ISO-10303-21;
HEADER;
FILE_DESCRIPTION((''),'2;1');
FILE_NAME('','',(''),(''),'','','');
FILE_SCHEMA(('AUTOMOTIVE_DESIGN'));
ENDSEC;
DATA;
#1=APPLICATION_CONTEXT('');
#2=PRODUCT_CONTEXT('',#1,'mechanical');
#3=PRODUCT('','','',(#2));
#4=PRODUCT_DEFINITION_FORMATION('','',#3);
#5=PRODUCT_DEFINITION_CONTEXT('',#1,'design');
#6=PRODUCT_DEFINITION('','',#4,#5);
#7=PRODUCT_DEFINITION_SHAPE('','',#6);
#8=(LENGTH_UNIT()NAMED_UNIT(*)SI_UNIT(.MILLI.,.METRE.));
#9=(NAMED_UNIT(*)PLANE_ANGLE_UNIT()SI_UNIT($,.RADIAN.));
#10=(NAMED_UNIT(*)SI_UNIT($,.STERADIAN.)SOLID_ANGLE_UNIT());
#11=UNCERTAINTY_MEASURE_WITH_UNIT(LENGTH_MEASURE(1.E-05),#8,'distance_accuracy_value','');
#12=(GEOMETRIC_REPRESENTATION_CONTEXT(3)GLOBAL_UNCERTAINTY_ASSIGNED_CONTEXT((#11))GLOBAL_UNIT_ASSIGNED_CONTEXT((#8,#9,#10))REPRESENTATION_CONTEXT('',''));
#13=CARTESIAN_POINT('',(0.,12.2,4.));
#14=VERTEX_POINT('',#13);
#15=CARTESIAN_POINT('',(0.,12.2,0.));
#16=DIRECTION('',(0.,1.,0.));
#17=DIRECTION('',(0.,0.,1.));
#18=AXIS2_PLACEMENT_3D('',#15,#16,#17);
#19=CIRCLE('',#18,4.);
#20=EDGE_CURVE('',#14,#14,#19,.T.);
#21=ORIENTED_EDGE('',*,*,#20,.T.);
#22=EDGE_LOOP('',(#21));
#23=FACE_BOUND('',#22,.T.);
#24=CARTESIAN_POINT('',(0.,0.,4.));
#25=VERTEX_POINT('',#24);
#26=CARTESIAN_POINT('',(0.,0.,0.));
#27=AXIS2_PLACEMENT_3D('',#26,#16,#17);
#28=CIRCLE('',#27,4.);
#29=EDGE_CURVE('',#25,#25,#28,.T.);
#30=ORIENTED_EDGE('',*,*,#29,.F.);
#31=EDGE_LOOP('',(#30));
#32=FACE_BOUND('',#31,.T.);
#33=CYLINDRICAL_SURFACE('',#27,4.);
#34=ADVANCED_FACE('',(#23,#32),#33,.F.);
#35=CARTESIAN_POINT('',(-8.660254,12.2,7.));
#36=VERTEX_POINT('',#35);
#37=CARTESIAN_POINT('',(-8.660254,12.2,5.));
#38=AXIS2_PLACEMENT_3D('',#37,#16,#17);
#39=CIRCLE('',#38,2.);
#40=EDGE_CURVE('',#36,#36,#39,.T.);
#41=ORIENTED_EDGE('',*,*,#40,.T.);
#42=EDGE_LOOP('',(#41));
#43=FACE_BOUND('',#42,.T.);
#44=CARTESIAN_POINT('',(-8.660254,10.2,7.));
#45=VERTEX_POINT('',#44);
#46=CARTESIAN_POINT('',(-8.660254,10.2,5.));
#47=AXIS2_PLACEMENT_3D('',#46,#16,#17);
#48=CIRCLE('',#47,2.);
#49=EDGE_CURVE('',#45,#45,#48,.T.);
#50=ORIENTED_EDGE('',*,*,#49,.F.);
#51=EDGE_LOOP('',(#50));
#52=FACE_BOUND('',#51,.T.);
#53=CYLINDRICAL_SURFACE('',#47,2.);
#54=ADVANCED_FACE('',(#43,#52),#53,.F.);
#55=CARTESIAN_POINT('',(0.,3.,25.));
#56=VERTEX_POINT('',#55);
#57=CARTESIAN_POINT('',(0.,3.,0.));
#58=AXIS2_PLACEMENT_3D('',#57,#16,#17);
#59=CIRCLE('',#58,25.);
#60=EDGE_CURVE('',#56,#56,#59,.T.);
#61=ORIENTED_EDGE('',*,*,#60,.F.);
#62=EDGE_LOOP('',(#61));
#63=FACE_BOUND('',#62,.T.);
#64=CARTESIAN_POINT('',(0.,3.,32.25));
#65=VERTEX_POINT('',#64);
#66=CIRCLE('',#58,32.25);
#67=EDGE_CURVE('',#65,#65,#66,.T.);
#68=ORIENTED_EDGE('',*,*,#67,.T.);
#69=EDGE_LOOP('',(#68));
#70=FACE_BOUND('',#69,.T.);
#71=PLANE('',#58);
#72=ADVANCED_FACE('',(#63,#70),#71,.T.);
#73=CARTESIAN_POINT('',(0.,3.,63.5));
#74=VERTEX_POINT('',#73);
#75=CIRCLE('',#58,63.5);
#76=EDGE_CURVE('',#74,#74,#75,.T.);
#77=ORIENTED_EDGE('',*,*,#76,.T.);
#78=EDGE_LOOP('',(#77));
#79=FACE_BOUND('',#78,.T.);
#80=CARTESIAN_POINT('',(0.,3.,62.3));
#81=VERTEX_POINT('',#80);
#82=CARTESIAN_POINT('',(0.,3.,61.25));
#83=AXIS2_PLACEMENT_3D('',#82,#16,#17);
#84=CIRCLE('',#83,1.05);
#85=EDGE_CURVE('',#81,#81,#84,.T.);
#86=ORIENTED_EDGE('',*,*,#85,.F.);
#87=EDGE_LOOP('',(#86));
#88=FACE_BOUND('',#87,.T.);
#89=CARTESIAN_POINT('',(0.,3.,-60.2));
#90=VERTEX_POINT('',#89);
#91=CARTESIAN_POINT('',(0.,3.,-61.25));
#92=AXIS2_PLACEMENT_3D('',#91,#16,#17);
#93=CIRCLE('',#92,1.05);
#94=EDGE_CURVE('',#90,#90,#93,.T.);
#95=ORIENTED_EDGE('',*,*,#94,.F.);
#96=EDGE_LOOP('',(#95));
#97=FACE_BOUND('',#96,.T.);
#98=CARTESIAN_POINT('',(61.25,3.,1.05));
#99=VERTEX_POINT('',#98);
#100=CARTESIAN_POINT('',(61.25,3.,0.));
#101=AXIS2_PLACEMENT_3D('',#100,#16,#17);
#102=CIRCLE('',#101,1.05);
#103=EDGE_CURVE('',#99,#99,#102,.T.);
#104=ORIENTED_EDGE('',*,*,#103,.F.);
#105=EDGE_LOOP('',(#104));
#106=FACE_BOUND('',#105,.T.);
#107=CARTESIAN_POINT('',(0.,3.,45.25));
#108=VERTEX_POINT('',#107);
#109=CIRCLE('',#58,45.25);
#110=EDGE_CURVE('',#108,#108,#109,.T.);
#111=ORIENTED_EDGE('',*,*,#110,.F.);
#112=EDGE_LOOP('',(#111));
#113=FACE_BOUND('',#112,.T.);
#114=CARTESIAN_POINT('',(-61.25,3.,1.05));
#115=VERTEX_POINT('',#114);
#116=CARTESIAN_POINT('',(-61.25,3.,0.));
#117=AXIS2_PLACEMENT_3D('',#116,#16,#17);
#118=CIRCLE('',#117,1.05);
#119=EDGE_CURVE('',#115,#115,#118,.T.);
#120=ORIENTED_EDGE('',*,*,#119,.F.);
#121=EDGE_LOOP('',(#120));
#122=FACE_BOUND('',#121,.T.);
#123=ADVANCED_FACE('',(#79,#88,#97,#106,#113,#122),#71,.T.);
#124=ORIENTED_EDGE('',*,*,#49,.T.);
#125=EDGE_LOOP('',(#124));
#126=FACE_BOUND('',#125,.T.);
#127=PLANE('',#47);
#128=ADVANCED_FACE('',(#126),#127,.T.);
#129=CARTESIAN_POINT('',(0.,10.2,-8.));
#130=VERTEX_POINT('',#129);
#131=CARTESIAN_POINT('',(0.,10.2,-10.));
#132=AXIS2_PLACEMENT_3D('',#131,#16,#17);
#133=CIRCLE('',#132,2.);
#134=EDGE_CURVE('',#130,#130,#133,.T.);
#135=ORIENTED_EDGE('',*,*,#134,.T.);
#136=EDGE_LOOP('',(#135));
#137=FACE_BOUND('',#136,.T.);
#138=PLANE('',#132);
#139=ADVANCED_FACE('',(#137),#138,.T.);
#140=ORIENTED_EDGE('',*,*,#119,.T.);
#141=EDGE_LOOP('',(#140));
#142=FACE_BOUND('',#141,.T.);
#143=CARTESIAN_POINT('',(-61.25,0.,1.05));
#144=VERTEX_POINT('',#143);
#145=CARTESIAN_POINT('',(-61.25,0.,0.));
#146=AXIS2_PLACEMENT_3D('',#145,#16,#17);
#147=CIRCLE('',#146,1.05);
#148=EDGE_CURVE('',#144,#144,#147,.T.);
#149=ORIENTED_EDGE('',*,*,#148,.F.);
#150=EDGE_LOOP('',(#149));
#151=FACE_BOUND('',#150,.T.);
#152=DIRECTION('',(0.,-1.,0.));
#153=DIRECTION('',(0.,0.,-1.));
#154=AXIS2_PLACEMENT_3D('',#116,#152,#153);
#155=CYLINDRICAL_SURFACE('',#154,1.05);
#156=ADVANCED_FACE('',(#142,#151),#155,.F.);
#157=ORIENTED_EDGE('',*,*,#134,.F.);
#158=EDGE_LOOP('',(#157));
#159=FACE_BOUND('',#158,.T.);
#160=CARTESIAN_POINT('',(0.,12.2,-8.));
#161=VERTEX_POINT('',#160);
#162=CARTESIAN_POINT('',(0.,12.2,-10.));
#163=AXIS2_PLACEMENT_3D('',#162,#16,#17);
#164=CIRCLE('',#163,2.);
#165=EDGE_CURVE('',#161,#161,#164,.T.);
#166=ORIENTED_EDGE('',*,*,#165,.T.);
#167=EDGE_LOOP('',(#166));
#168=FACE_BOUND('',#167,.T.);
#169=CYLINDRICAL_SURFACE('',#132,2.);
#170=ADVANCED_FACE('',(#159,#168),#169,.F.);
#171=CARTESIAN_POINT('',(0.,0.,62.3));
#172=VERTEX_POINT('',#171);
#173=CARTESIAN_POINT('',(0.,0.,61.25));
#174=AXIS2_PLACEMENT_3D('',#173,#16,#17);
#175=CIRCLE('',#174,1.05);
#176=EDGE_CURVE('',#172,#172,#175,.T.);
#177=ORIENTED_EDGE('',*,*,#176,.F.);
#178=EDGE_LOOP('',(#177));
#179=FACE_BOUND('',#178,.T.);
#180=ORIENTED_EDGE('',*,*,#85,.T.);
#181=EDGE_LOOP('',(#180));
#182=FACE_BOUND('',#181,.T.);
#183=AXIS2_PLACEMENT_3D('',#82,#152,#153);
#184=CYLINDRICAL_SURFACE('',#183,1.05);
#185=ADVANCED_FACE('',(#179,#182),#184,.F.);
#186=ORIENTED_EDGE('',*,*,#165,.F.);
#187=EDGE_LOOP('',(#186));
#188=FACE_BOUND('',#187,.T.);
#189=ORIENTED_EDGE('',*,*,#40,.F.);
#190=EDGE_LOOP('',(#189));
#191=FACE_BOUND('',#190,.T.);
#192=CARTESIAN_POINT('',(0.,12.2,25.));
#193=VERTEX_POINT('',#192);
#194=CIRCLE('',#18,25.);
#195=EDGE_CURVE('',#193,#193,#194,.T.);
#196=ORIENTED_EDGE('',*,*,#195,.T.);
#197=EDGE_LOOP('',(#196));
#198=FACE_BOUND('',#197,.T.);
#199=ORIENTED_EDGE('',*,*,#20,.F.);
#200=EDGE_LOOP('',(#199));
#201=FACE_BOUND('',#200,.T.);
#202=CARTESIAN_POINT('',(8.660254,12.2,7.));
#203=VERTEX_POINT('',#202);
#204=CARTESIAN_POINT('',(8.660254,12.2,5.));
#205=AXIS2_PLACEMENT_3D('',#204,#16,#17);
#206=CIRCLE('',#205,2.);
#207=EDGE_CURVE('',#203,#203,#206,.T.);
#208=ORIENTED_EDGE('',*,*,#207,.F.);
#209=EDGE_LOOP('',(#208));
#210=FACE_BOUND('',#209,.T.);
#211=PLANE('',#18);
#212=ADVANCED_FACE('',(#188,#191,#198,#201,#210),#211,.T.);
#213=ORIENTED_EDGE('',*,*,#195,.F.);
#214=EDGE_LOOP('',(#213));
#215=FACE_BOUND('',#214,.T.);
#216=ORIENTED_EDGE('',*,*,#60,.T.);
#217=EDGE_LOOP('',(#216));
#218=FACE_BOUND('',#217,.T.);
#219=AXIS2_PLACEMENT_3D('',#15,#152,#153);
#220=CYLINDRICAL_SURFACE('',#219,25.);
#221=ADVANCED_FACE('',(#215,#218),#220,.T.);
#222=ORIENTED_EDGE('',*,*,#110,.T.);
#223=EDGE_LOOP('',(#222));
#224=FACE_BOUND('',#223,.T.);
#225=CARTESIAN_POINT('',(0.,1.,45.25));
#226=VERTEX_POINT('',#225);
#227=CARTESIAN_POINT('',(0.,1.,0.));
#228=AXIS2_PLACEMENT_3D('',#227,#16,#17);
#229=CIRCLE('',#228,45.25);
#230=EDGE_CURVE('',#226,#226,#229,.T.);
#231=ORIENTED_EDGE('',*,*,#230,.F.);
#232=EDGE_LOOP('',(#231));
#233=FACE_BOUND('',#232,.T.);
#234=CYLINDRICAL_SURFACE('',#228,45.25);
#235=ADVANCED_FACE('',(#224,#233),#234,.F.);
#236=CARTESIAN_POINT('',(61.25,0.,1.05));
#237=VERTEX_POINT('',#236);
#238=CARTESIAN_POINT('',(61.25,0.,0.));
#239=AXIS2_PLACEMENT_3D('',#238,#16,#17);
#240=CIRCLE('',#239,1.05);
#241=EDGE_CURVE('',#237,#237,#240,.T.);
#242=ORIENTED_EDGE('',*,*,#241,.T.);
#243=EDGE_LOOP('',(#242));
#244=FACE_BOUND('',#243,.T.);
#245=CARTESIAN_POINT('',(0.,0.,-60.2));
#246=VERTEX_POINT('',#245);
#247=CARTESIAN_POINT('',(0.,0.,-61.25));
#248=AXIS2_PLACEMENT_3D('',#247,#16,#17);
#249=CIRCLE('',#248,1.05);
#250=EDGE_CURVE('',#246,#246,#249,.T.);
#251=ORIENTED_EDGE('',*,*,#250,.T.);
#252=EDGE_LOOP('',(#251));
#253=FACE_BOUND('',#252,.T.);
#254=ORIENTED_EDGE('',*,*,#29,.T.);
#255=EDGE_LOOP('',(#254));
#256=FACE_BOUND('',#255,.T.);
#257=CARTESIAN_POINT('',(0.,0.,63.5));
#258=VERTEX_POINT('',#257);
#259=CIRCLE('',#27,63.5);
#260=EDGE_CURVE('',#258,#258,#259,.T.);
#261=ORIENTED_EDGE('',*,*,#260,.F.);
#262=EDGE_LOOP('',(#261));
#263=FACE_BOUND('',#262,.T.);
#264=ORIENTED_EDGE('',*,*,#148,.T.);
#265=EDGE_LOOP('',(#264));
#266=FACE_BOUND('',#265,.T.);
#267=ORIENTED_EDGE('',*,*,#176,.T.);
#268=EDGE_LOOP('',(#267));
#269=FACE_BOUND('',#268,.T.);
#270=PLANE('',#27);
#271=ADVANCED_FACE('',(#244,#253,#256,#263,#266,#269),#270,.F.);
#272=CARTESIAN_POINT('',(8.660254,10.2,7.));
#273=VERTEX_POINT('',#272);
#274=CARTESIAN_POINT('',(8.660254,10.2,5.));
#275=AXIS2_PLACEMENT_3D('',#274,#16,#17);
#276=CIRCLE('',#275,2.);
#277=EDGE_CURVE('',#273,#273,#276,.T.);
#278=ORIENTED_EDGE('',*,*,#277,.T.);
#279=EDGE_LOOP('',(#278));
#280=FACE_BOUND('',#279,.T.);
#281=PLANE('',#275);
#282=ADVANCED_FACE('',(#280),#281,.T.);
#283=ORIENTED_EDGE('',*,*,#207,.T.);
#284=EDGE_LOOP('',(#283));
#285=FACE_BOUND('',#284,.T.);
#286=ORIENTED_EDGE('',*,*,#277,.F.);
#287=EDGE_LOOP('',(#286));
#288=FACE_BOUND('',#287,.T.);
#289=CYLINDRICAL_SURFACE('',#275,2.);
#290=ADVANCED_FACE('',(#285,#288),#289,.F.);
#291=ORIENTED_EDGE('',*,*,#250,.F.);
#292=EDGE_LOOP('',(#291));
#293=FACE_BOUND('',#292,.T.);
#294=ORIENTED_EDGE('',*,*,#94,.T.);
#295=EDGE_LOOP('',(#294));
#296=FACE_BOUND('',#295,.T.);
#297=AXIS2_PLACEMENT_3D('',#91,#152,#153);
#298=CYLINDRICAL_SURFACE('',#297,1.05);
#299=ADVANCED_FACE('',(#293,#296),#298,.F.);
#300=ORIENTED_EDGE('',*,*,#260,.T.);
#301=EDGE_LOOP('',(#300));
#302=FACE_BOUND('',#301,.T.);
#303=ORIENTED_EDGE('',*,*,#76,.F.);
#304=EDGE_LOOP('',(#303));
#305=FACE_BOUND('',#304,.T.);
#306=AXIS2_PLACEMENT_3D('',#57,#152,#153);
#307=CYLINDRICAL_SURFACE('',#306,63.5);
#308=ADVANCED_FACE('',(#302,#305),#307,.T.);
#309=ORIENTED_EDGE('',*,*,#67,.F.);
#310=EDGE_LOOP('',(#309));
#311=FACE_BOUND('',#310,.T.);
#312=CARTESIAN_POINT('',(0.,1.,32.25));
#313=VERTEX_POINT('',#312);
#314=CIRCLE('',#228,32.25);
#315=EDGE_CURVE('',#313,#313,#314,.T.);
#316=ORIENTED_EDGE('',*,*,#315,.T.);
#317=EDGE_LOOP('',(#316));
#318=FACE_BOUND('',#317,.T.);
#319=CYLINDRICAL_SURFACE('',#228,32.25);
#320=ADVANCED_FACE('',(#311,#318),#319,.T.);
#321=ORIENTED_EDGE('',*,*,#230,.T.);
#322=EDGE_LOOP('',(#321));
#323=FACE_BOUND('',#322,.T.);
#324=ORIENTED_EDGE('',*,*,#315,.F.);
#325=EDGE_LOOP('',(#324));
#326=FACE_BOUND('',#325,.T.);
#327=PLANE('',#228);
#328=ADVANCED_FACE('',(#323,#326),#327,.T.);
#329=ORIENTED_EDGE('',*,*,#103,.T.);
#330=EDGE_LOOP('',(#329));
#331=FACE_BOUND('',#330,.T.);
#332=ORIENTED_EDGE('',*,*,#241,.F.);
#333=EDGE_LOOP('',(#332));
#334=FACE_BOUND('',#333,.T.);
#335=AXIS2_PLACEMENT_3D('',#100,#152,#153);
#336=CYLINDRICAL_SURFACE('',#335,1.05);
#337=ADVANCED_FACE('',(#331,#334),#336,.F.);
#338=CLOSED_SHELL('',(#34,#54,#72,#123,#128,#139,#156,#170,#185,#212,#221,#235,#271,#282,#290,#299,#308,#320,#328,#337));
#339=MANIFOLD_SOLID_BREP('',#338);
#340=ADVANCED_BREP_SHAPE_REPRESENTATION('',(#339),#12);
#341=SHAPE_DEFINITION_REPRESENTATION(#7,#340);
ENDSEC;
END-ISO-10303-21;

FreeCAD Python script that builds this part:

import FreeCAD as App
import Part
import Sketcher

doc = App.newDocument("Part")
body = doc.addObject("PartDesign::Body", "Body")

# Sketch on XZ plane
sketch1 = doc.addObject("Sketcher::SketchObject", "Sketch")
body.addObject(sketch1)
sketch1.AttachmentSupport = (doc.XZ_Plane, [""])
sketch1.MapMode = "FlatFace"
sketch1.addGeometry([
    Part.Circle(App.Vector(0, 0, 0), App.Vector(0, 0, 1), 63.5),  # 0
    Part.Circle(App.Vector(0, -61.25, 0), App.Vector(0, 0, 1), 1.05),  # 1
    Part.Circle(App.Vector(-61.25, 0, 0), App.Vector(0, 0, 1), 1.05),  # 2
    Part.Circle(App.Vector(61.25, 0, 0), App.Vector(0, 0, 1), 1.05),  # 3
    Part.Circle(App.Vector(0, 61.25, 0), App.Vector(0, 0, 1), 1.05),  # 4
], False)
sketch1.addConstraint([
    Sketcher.Constraint("Coincident", 0, 3, -1, 1),
    Sketcher.Constraint("Equal", 1, 2),
    Sketcher.Constraint("Equal", 2, 3),
    Sketcher.Constraint("Equal", 3, 4),
    Sketcher.Constraint("Symmetric", 2, 3, 3, 3, -1, 1),
    Sketcher.Constraint("Symmetric", 1, 3, 4, 3, -1, 1),
    Sketcher.Constraint("PointOnObject", 1, 3, -2),
    Sketcher.Constraint("PointOnObject", 2, 3, -1),
    Sketcher.Constraint("Diameter", 0, 127.0),
    Sketcher.Constraint("Diameter", 1, 2.1),
    Sketcher.Constraint("DistanceX", 2, 3, 3, 3, 122.5),
    Sketcher.Constraint("DistanceY", 1, 3, 4, 3, 122.5),
])
pad1 = doc.addObject("PartDesign::Pad", "Pad")
body.addObject(pad1)
pad1.Profile = sketch1
pad1.Length = 3
pad1.Reversed = True

# Sketch on XZ plane
sketch2 = doc.addObject("Sketcher::SketchObject", "Sketch001")
body.addObject(sketch2)
sketch2.AttachmentSupport = (doc.XZ_Plane, [""])
sketch2.MapMode = "FlatFace"
sketch2.AttachmentOffset = App.Placement(App.Vector(0, 0, -3), App.Rotation())
sketch2.addGeometry([
    Part.Circle(App.Vector(0, 0, 0), App.Vector(0, 0, 1), 45.25),
    Part.Circle(App.Vector(0, 0, 0), App.Vector(0, 0, 1), 32.25),
], False)
sketch2.addConstraint([
    Sketcher.Constraint("Coincident", 0, 3, -1, 1),
    Sketcher.Constraint("Coincident", 1, 3, -1, 1),
    Sketcher.Constraint("Diameter", 0, 90.5),
    Sketcher.Constraint("Diameter", 1, 64.5),
])
pocket1 = doc.addObject("PartDesign::Pocket", "Pocket")
body.addObject(pocket1)
pocket1.Profile = sketch2
pocket1.Length = 2
pocket1.Reversed = True

# Sketch on XZ plane
sketch3 = doc.addObject("Sketcher::SketchObject", "Sketch002")
body.addObject(sketch3)
sketch3.AttachmentSupport = (doc.XZ_Plane, [""])
sketch3.MapMode = "FlatFace"
sketch3.AttachmentOffset = App.Placement(App.Vector(0, 0, -3), App.Rotation())
sketch3.addGeometry(Part.Circle(App.Vector(0, 0, 0), App.Vector(0, 0, 1), 25), False)
sketch3.addConstraint([
    Sketcher.Constraint("Coincident", 0, 3, -1, 1),
    Sketcher.Constraint("Diameter", 0, 50.0),
])
pad2 = doc.addObject("PartDesign::Pad", "Pad001")
body.addObject(pad2)
pad2.Profile = sketch3
pad2.Length = 9.2
pad2.Reversed = True

# Sketch on XZ plane
sketch4 = doc.addObject("Sketcher::SketchObject", "Sketch003")
body.addObject(sketch4)
sketch4.AttachmentSupport = (doc.XZ_Plane, [""])
sketch4.MapMode = "FlatFace"
sketch4.AttachmentOffset = App.Placement(App.Vector(0, 0, -12.2), App.Rotation())
sketch4.addGeometry([
    Part.Circle(App.Vector(0, -10, 0), App.Vector(0, 0, 1), 2),
    Part.Circle(App.Vector(8.660254, 5, 0), App.Vector(0, 0, 1), 2),
    Part.Circle(App.Vector(-8.660254, 5, 0), App.Vector(0, 0, 1), 2),
], False)
sketch4.addConstraint([
    Sketcher.Constraint("Equal", 0, 1),
    Sketcher.Constraint("Equal", 1, 2),
    Sketcher.Constraint("Symmetric", 1, 3, 2, 3, -2),
    Sketcher.Constraint("PointOnObject", 0, 3, -2),
    Sketcher.Constraint("Diameter", 0, 4.0),
    Sketcher.Constraint("DistanceY", 0, 3, -1, 1, 10.0),
    Sketcher.Constraint("DistanceY", -1, 1, 1, 3, 5.0),
    Sketcher.Constraint("DistanceX", 2, 3, 1, 3, 17.320508),
])
pocket2 = doc.addObject("PartDesign::Pocket", "Pocket001")
body.addObject(pocket2)
pocket2.Profile = sketch4
pocket2.Length = 2
pocket2.Reversed = True

# Sketch on XZ plane
sketch5 = doc.addObject("Sketcher::SketchObject", "Sketch004")
body.addObject(sketch5)
sketch5.AttachmentSupport = (doc.XZ_Plane, [""])
sketch5.MapMode = "FlatFace"
sketch5.AttachmentOffset = App.Placement(App.Vector(0, 0, -12.2), App.Rotation())
sketch5.addGeometry(Part.Circle(App.Vector(0, 0, 0), App.Vector(0, 0, 1), 4), False)
sketch5.addConstraint([
    Sketcher.Constraint("Coincident", 0, 3, -1, 1),
    Sketcher.Constraint("Diameter", 0, 8.0),
])
pocket3 = doc.addObject("PartDesign::Pocket", "Pocket002")
body.addObject(pocket3)
pocket3.Profile = sketch5
pocket3.Type = "ThroughAll"
pocket3.Reversed = True

doc.recompute()
